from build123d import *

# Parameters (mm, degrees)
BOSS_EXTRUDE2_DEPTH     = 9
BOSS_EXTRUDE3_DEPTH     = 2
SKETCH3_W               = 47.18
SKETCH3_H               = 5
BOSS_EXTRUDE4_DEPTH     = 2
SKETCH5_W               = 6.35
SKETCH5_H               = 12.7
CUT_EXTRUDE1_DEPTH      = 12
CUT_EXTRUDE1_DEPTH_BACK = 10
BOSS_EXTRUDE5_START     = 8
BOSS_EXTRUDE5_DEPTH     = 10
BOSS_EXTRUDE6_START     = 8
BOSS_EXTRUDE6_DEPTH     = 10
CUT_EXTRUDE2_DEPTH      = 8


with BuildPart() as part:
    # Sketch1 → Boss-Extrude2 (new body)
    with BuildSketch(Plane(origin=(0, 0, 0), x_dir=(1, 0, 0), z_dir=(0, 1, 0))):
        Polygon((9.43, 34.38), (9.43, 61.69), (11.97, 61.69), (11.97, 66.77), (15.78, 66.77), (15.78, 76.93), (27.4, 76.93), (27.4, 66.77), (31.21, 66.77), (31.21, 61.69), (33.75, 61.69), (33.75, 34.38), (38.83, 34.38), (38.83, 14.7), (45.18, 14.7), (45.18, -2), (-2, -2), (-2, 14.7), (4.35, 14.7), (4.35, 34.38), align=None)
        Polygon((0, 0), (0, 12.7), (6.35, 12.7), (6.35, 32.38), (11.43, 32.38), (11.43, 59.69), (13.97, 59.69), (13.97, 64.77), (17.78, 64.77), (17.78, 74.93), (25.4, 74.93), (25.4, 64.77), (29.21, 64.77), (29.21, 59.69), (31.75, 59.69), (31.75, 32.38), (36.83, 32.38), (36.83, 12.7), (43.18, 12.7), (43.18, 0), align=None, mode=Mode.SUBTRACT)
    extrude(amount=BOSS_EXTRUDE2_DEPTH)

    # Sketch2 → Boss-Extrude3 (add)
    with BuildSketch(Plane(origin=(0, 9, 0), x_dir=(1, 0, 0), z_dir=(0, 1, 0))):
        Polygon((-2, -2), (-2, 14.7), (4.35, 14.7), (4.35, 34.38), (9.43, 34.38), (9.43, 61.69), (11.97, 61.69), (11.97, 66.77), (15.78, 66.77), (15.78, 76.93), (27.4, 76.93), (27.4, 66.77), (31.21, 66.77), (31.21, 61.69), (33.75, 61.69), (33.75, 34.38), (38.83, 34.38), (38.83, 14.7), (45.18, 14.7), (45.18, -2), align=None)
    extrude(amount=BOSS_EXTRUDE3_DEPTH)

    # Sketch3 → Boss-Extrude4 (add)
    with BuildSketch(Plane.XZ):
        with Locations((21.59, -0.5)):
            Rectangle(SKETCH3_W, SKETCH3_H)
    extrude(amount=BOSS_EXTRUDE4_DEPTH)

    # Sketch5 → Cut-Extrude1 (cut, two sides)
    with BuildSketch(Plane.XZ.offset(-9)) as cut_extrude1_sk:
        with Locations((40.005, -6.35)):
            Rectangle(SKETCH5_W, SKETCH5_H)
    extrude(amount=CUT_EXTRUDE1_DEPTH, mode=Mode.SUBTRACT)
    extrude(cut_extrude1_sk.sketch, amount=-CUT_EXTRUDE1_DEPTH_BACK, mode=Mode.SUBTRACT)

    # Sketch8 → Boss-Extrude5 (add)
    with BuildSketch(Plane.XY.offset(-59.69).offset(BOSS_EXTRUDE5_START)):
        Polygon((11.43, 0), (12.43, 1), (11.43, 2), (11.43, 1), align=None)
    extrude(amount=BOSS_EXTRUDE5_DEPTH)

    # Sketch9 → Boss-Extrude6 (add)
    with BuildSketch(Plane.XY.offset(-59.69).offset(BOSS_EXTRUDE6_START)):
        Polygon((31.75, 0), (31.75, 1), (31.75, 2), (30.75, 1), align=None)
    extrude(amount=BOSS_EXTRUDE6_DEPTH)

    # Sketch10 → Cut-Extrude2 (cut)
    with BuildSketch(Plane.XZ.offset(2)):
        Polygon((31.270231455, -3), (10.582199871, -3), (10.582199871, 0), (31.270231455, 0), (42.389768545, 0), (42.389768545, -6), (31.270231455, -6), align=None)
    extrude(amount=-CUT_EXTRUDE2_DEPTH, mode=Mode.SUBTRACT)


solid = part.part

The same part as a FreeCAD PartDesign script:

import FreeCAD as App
import Part
import Sketcher

doc = App.newDocument("Part")
body = doc.addObject("PartDesign::Body", "Body")

sketch1 = body.newObject("Sketcher::SketchObject", "Sketch")
sketch1.AttachmentSupport = (doc.getObject("XZ_Plane"), [""])
sketch1.MapMode = "FlatFace"
sketch1.addGeometry([
    Part.LineSegment(App.Vector(9.4, -61.7, 0), App.Vector(9.4, -34.4, 0)),
    Part.LineSegment(App.Vector(9.4, -34.4, 0), App.Vector(4.3, -34.4, 0)),
    Part.LineSegment(App.Vector(4.3, -34.4, 0), App.Vector(4.3, -14.7, 0)),
    Part.LineSegment(App.Vector(4.3, -14.7, 0), App.Vector(-2, -14.7, 0)),
    Part.LineSegment(App.Vector(-2, -14.7, 0), App.Vector(-2, 2, 0)),
    Part.LineSegment(App.Vector(-2, 2, 0), App.Vector(45.2, 2, 0)),
    Part.LineSegment(App.Vector(45.2, 2, 0), App.Vector(45.2, -14.7, 0)),
    Part.LineSegment(App.Vector(45.2, -14.7, 0), App.Vector(38.8, -14.7, 0)),
    Part.LineSegment(App.Vector(38.8, -14.7, 0), App.Vector(38.8, -34.4, 0)),
    Part.LineSegment(App.Vector(38.8, -34.4, 0), App.Vector(33.8, -34.4, 0)),
    Part.LineSegment(App.Vector(33.8, -34.4, 0), App.Vector(33.8, -61.7, 0)),
    Part.LineSegment(App.Vector(33.8, -61.7, 0), App.Vector(31.2, -61.7, 0)),
    Part.LineSegment(App.Vector(31.2, -61.7, 0), App.Vector(31.2, -66.8, 0)),
    Part.LineSegment(App.Vector(31.2, -66.8, 0), App.Vector(27.4, -66.8, 0)),
    Part.LineSegment(App.Vector(27.4, -66.8, 0), App.Vector(27.4, -76.9, 0)),
    Part.LineSegment(App.Vector(27.4, -76.9, 0), App.Vector(15.8, -76.9, 0)),
    Part.LineSegment(App.Vector(15.8, -76.9, 0), App.Vector(15.8, -66.8, 0)),
    Part.LineSegment(App.Vector(15.8, -66.8, 0), App.Vector(12, -66.8, 0)),
    Part.LineSegment(App.Vector(12, -66.8, 0), App.Vector(12, -61.7, 0)),
    Part.LineSegment(App.Vector(12, -61.7, 0), App.Vector(9.4, -61.7, 0)),
    Part.LineSegment(App.Vector(0, 0, 0), App.Vector(0, -12.7, 0)),
    Part.LineSegment(App.Vector(0, -12.7, 0), App.Vector(6.3, -12.7, 0)),
    Part.LineSegment(App.Vector(6.3, -12.7, 0), App.Vector(6.3, -32.4, 0)),
    Part.LineSegment(App.Vector(6.3, -32.4, 0), App.Vector(11.4, -32.4, 0)),
    Part.LineSegment(App.Vector(11.4, -32.4, 0), App.Vector(11.4, -59.7, 0)),
    Part.LineSegment(App.Vector(11.4, -59.7, 0), App.Vector(14, -59.7, 0)),
    Part.LineSegment(App.Vector(14, -59.7, 0), App.Vector(14, -64.8, 0)),
    Part.LineSegment(App.Vector(14, -64.8, 0), App.Vector(17.8, -64.8, 0)),
    Part.LineSegment(App.Vector(17.8, -64.8, 0), App.Vector(17.8, -74.9, 0)),
    Part.LineSegment(App.Vector(17.8, -74.9, 0), App.Vector(25.4, -74.9, 0)),
    Part.LineSegment(App.Vector(25.4, -74.9, 0), App.Vector(25.4, -64.8, 0)),
    Part.LineSegment(App.Vector(25.4, -64.8, 0), App.Vector(29.2, -64.8, 0)),
    Part.LineSegment(App.Vector(29.2, -64.8, 0), App.Vector(29.2, -59.7, 0)),
    Part.LineSegment(App.Vector(29.2, -59.7, 0), App.Vector(31.8, -59.7, 0)),
    Part.LineSegment(App.Vector(31.8, -59.7, 0), App.Vector(31.8, -32.4, 0)),
    Part.LineSegment(App.Vector(31.8, -32.4, 0), App.Vector(36.8, -32.4, 0)),
    Part.LineSegment(App.Vector(36.8, -32.4, 0), App.Vector(36.8, -12.7, 0)),
    Part.LineSegment(App.Vector(36.8, -12.7, 0), App.Vector(43.2, -12.7, 0)),
    Part.LineSegment(App.Vector(43.2, -12.7, 0), App.Vector(43.2, 0, 0)),
    Part.LineSegment(App.Vector(43.2, 0, 0), App.Vector(0, 0, 0)),
], False)
sketch1.addConstraint([
    Sketcher.Constraint("Coincident", 0, 2, 1, 1),
    Sketcher.Constraint("Coincident", 1, 2, 2, 1),
    Sketcher.Constraint("Coincident", 2, 2, 3, 1),
    Sketcher.Constraint("Coincident", 3, 2, 4, 1),
    Sketcher.Constraint("Coincident", 4, 2, 5, 1),
    Sketcher.Constraint("Coincident", 5, 2, 6, 1),
    Sketcher.Constraint("Coincident", 6, 2, 7, 1),
    Sketcher.Constraint("Coincident", 7, 2, 8, 1),
    Sketcher.Constraint("Coincident", 8, 2, 9, 1),
    Sketcher.Constraint("Coincident", 9, 2, 10, 1),
    Sketcher.Constraint("Coincident", 10, 2, 11, 1),
    Sketcher.Constraint("Coincident", 11, 2, 12, 1),
    Sketcher.Constraint("Coincident", 12, 2, 13, 1),
    Sketcher.Constraint("Coincident", 13, 2, 14, 1),
    Sketcher.Constraint("Coincident", 14, 2, 15, 1),
    Sketcher.Constraint("Coincident", 15, 2, 16, 1),
    Sketcher.Constraint("Coincident", 16, 2, 17, 1),
    Sketcher.Constraint("Coincident", 17, 2, 18, 1),
    Sketcher.Constraint("Coincident", 18, 2, 19, 1),
    Sketcher.Constraint("Coincident", 19, 2, 0, 1),
    Sketcher.Constraint("Coincident", 20, 2, 21, 1),
    Sketcher.Constraint("Coincident", 21, 2, 22, 1),
    Sketcher.Constraint("Coincident", 22, 2, 23, 1),
    Sketcher.Constraint("Coincident", 23, 2, 24, 1),
    Sketcher.Constraint("Coincident", 24, 2, 25, 1),
    Sketcher.Constraint("Coincident", 25, 2, 26, 1),
    Sketcher.Constraint("Coincident", 26, 2, 27, 1),
    Sketcher.Constraint("Coincident", 27, 2, 28, 1),
    Sketcher.Constraint("Coincident", 28, 2, 29, 1),
    Sketcher.Constraint("Coincident", 29, 2, 30, 1),
    Sketcher.Constraint("Coincident", 30, 2, 31, 1),
    Sketcher.Constraint("Coincident", 31, 2, 32, 1),
    Sketcher.Constraint("Coincident", 32, 2, 33, 1),
    Sketcher.Constraint("Coincident", 33, 2, 34, 1),
    Sketcher.Constraint("Coincident", 34, 2, 35, 1),
    Sketcher.Constraint("Coincident", 35, 2, 36, 1),
    Sketcher.Constraint("Coincident", 36, 2, 37, 1),
    Sketcher.Constraint("Coincident", 37, 2, 38, 1),
    Sketcher.Constraint("Coincident", 38, 2, 39, 1),
    Sketcher.Constraint("Coincident", 39, 2, 20, 1),
    Sketcher.Constraint("Vertical", 0),
    Sketcher.Constraint("Horizontal", 1),
    Sketcher.Constraint("Vertical", 2),
    Sketcher.Constraint("Horizontal", 3),
    Sketcher.Constraint("Vertical", 4),
    Sketcher.Constraint("Horizontal", 5),
    Sketcher.Constraint("Vertical", 6),
    Sketcher.Constraint("Horizontal", 7),
    Sketcher.Constraint("Vertical", 8),
    Sketcher.Constraint("Horizontal", 9),
    Sketcher.Constraint("Vertical", 10),
    Sketcher.Constraint("Horizontal", 11),
    Sketcher.Constraint("Vertical", 12),
    Sketcher.Constraint("Horizontal", 13),
    Sketcher.Constraint("Vertical", 14),
    Sketcher.Constraint("Horizontal", 15),
    Sketcher.Constraint("Vertical", 16),
    Sketcher.Constraint("Horizontal", 17),
    Sketcher.Constraint("Vertical", 18),
    Sketcher.Constraint("Horizontal", 19),
    Sketcher.Constraint("Vertical", 20),
    Sketcher.Constraint("Horizontal", 21),
    Sketcher.Constraint("Vertical", 22),
    Sketcher.Constraint("Horizontal", 23),
    Sketcher.Constraint("Vertical", 24),
    Sketcher.Constraint("Horizontal", 25),
    Sketcher.Constraint("Vertical", 26),
    Sketcher.Constraint("Horizontal", 27),
    Sketcher.Constraint("Vertical", 28),
    Sketcher.Constraint("Horizontal", 29),
    Sketcher.Constraint("Vertical", 30),
    Sketcher.Constraint("Horizontal", 31),
    Sketcher.Constraint("Vertical", 32),
    Sketcher.Constraint("Horizontal", 33),
    Sketcher.Constraint("Vertical", 34),
    Sketcher.Constraint("Horizontal", 35),
    Sketcher.Constraint("Vertical", 36),
    Sketcher.Constraint("Horizontal", 37),
    Sketcher.Constraint("Vertical", 38),
    Sketcher.Constraint("Horizontal", 39),
    Sketcher.Constraint("Coincident", 39, 2, -1, 1),
    Sketcher.Constraint("Horizontal", 3, 2, 6, 2),
    Sketcher.Constraint("Horizontal", 1, 2, 8, 2),
    Sketcher.Constraint("Horizontal", 13, 2, 16, 2),
    Sketcher.Constraint("Horizontal", 11, 2, 18, 2),
    Sketcher.Constraint("Horizontal", 27, 2, 30, 2),
    Sketcher.Constraint("Horizontal", 25, 2, 32, 2),
    Sketcher.Constraint("Horizontal", 23, 2, 34, 2),
    Sketcher.Constraint("Horizontal", 21, 2, 36, 2),
    Sketcher.Constraint("Equal", 3, 7),
    Sketcher.Constraint("Equal", 1, 9),
    Sketcher.Constraint("Equal", 13, 17),
    Sketcher.Constraint("Equal", 11, 19),
    Sketcher.Constraint("Equal", 7, 21),
    Sketcher.Constraint("Equal", 9, 23),
    Sketcher.Constraint("Equal", 19, 25),
    Sketcher.Constraint("Equal", 17, 27),
    Sketcher.Constraint("Equal", 27, 31),
    Sketcher.Constraint("Equal", 25, 33),
    Sketcher.Constraint("Equal", 23, 35),
    Sketcher.Constraint("Equal", 21, 37),
    Sketcher.Constraint("Equal", 35, 12),
    Sketcher.Constraint("Equal", 8, 22),
    Sketcher.Constraint("Equal", 10, 24),
    Sketcher.Constraint("Equal", 18, 26),
    Sketcher.Constraint("Equal", 16, 28),
    Sketcher.Constraint("DistanceY", 4, 1, 4, 2, 16.7),
    Sketcher.Constraint("DistanceY", 20, 2, 20, 1, 12.7),
    Sketcher.Constraint("DistanceX", 3, 2, -1, 1, 2.0),
    Sketcher.Constraint("DistanceY", -1, 1, 4, 2, 2.0),
    Sketcher.Constraint("DistanceX", 29, 2, 14, 2, 2.0),
    Sketcher.Constraint("DistanceX", 1, 2, 1, 1, 5.08),
    Sketcher.Constraint("DistanceX", 3, 2, 3, 1, 6.35),
    Sketcher.Constraint("DistanceX", 5, 1, 5, 2, 47.18),
    Sketcher.Constraint("DistanceX", 11, 2, 11, 1, 2.54),
    Sketcher.Constraint("DistanceX", 13, 2, 13, 1, 3.81),
    Sketcher.Constraint("DistanceY", 0, 1, 0, 2, 27.31),
    Sketcher.Constraint("DistanceY", 2, 1, 2, 2, 19.68),
    Sketcher.Constraint("DistanceY", 14, 2, 14, 1, 10.16),
])
pad1 = body.newObject("PartDesign::Pad", "Pad")
pad1.Profile = sketch1
pad1.Length = 9
pad1.Reversed = True

sketch2 = body.newObject("Sketcher::SketchObject", "Sketch001")
sketch2.AttachmentSupport = (doc.getObject("XZ_Plane"), [""])
sketch2.MapMode = "FlatFace"
sketch2.AttachmentOffset = App.Placement(App.Vector(0, 0, -9), App.Rotation())
sketch2.addGeometry([
    Part.LineSegment(App.Vector(-2, -14.7, 0), App.Vector(-2, 2, 0)),
    Part.LineSegment(App.Vector(-2, 2, 0), App.Vector(45.2, 2, 0)),
    Part.LineSegment(App.Vector(45.2, 2, 0), App.Vector(45.2, -14.7, 0)),
    Part.LineSegment(App.Vector(45.2, -14.7, 0), App.Vector(38.8, -14.7, 0)),
    Part.LineSegment(App.Vector(38.8, -14.7, 0), App.Vector(38.8, -34.4, 0)),
    Part.LineSegment(App.Vector(38.8, -34.4, 0), App.Vector(33.8, -34.4, 0)),
    Part.LineSegment(App.Vector(33.8, -34.4, 0), App.Vector(33.8, -61.7, 0)),
    Part.LineSegment(App.Vector(33.8, -61.7, 0), App.Vector(31.2, -61.7, 0)),
    Part.LineSegment(App.Vector(31.2, -61.7, 0), App.Vector(31.2, -66.8, 0)),
    Part.LineSegment(App.Vector(31.2, -66.8, 0), App.Vector(27.4, -66.8, 0)),
    Part.LineSegment(App.Vector(27.4, -66.8, 0), App.Vector(27.4, -76.9, 0)),
    Part.LineSegment(App.Vector(27.4, -76.9, 0), App.Vector(15.8, -76.9, 0)),
    Part.LineSegment(App.Vector(15.8, -76.9, 0), App.Vector(15.8, -66.8, 0)),
    Part.LineSegment(App.Vector(15.8, -66.8, 0), App.Vector(12, -66.8, 0)),
    Part.LineSegment(App.Vector(12, -66.8, 0), App.Vector(12, -61.7, 0)),
    Part.LineSegment(App.Vector(12, -61.7, 0), App.Vector(9.4, -61.7, 0)),
    Part.LineSegment(App.Vector(9.4, -61.7, 0), App.Vector(9.4, -34.4, 0)),
    Part.LineSegment(App.Vector(9.4, -34.4, 0), App.Vector(4.3, -34.4, 0)),
    Part.LineSegment(App.Vector(4.3, -34.4, 0), App.Vector(4.3, -14.7, 0)),
    Part.LineSegment(App.Vector(4.3, -14.7, 0), App.Vector(-2, -14.7, 0)),
], False)
sketch2.addConstraint([
    Sketcher.Constraint("Coincident", 0, 2, 1, 1),
    Sketcher.Constraint("Coincident", 1, 2, 2, 1),
    Sketcher.Constraint("Coincident", 2, 2, 3, 1),
    Sketcher.Constraint("Coincident", 3, 2, 4, 1),
    Sketcher.Constraint("Coincident", 4, 2, 5, 1),
    Sketcher.Constraint("Coincident", 5, 2, 6, 1),
    Sketcher.Constraint("Coincident", 6, 2, 7, 1),
    Sketcher.Constraint("Coincident", 7, 2, 8, 1),
    Sketcher.Constraint("Coincident", 8, 2, 9, 1),
    Sketcher.Constraint("Coincident", 9, 2, 10, 1),
    Sketcher.Constraint("Coincident", 10, 2, 11, 1),
    Sketcher.Constraint("Coincident", 11, 2, 12, 1),
    Sketcher.Constraint("Coincident", 12, 2, 13, 1),
    Sketcher.Constraint("Coincident", 13, 2, 14, 1),
    Sketcher.Constraint("Coincident", 14, 2, 15, 1),
    Sketcher.Constraint("Coincident", 15, 2, 16, 1),
    Sketcher.Constraint("Coincident", 16, 2, 17, 1),
    Sketcher.Constraint("Coincident", 17, 2, 18, 1),
    Sketcher.Constraint("Coincident", 18, 2, 19, 1),
    Sketcher.Constraint("Coincident", 19, 2, 0, 1),
    Sketcher.Constraint("Vertical", 0),
    Sketcher.Constraint("Horizontal", 1),
    Sketcher.Constraint("Vertical", 2),
    Sketcher.Constraint("Horizontal", 3),
    Sketcher.Constraint("Vertical", 4),
    Sketcher.Constraint("Horizontal", 5),
    Sketcher.Constraint("Vertical", 6),
    Sketcher.Constraint("Horizontal", 7),
    Sketcher.Constraint("Vertical", 8),
    Sketcher.Constraint("Horizontal", 9),
    Sketcher.Constraint("Vertical", 10),
    Sketcher.Constraint("Horizontal", 11),
    Sketcher.Constraint("Vertical", 12),
    Sketcher.Constraint("Horizontal", 13),
    Sketcher.Constraint("Vertical", 14),
    Sketcher.Constraint("Horizontal", 15),
    Sketcher.Constraint("Vertical", 16),
    Sketcher.Constraint("Horizontal", 17),
    Sketcher.Constraint("Vertical", 18),
    Sketcher.Constraint("Horizontal", 19),
    Sketcher.Constraint("Horizontal", 9, 2, 12, 2),
    Sketcher.Constraint("Horizontal", 7, 2, 14, 2),
    Sketcher.Constraint("Horizontal", 5, 2, 16, 2),
    Sketcher.Constraint("Horizontal", 3, 2, 18, 2),
    Sketcher.Constraint("Equal", 9, 13),
    Sketcher.Constraint("Equal", 7, 15),
    Sketcher.Constraint("Equal", 5, 17),
    Sketcher.Constraint("Equal", 3, 19),
    Sketcher.Constraint("Equal", 17, 8),
    Sketcher.Constraint("DistanceY", 0, 1, 0, 2, 16.7),
    Sketcher.Constraint("DistanceX", 0, 2, -1, 1, 2.0),
    Sketcher.Constraint("DistanceY", -1, 1, 0, 2, 2.0),
    Sketcher.Constraint("DistanceX", 1, 1, 1, 2, 47.18),
    Sketcher.Constraint("DistanceX", 3, 2, 3, 1, 6.35),
    Sketcher.Constraint("DistanceX", 5, 2, 5, 1, 5.08),
    Sketcher.Constraint("DistanceX", 7, 2, 7, 1, 2.54),
    Sketcher.Constraint("DistanceX", 9, 2, 9, 1, 3.81),
    Sketcher.Constraint("DistanceY", 4, 2, 4, 1, 19.68),
    Sketcher.Constraint("DistanceY", 6, 2, 6, 1, 27.31),
    Sketcher.Constraint("DistanceY", 10, 2, 10, 1, 10.16),
])
pad2 = body.newObject("PartDesign::Pad", "Pad001")
pad2.Profile = sketch2
pad2.Length = 2
pad2.Reversed = True

sketch3 = body.newObject("Sketcher::SketchObject", "Sketch002")
sketch3.AttachmentSupport = (doc.getObject("XZ_Plane"), [""])
sketch3.MapMode = "FlatFace"
sketch3.addGeometry([
    Part.LineSegment(App.Vector(-2, 2, 0), App.Vector(-2, -3, 0)),
    Part.LineSegment(App.Vector(-2, -3, 0), App.Vector(45, -3, 0)),
    Part.LineSegment(App.Vector(45, -3, 0), App.Vector(45, 2, 0)),
    Part.LineSegment(App.Vector(45, 2, 0), App.Vector(-2, 2, 0)),
], False)
sketch3.addConstraint([
    Sketcher.Constraint("Coincident", 0, 2, 1, 1),
    Sketcher.Constraint("Coincident", 1, 2, 2, 1),
    Sketcher.Constraint("Coincident", 2, 2, 3, 1),
    Sketcher.Constraint("Coincident", 3, 2, 0, 1),
    Sketcher.Constraint("Vertical", 0),
    Sketcher.Constraint("Horizontal", 1),
    Sketcher.Constraint("Vertical", 2),
    Sketcher.Constraint("Horizontal", 3),
    Sketcher.Constraint("DistanceY", 0, 2, 0, 1, 5.0),
    Sketcher.Constraint("DistanceX", 0, 2, -1, 1, 2.0),
    Sketcher.Constraint("DistanceY", 0, 2, -1, 1, 3.0),
    Sketcher.Constraint("DistanceX", 1, 1, 1, 2, 47.18),
])
pad3 = body.newObject("PartDesign::Pad", "Pad002")
pad3.Profile = sketch3
pad3.Length = 2

sketch4 = body.newObject("Sketcher::SketchObject", "Sketch003")
sketch4.AttachmentSupport = (doc.getObject("XZ_Plane"), [""])
sketch4.MapMode = "FlatFace"
sketch4.AttachmentOffset = App.Placement(App.Vector(0, 0, -9), App.Rotation())
sketch4.addGeometry([
    Part.LineSegment(App.Vector(37, 0, 0), App.Vector(37, -13, 0)),
    Part.LineSegment(App.Vector(37, -13, 0), App.Vector(43, -13, 0)),
    Part.LineSegment(App.Vector(43, -13, 0), App.Vector(43, 0, 0)),
    Part.LineSegment(App.Vector(43, 0, 0), App.Vector(37, 0, 0)),
], False)
sketch4.addConstraint([
    Sketcher.Constraint("Coincident", 0, 2, 1, 1),
    Sketcher.Constraint("Coincident", 1, 2, 2, 1),
    Sketcher.Constraint("Coincident", 2, 2, 3, 1),
    Sketcher.Constraint("Coincident", 3, 2, 0, 1),
    Sketcher.Constraint("Vertical", 0),
    Sketcher.Constraint("Horizontal", 1),
    Sketcher.Constraint("Vertical", 2),
    Sketcher.Constraint("Horizontal", 3),
    Sketcher.Constraint("PointOnObject", 2, 2, -1),
    Sketcher.Constraint("DistanceY", 0, 2, 0, 1, 12.7),
    Sketcher.Constraint("DistanceX", 1, 1, 1, 2, 6.35),
    Sketcher.Constraint("DistanceX", -1, 1, 0, 2, 36.83),
])
pocket1 = body.newObject("PartDesign::Pocket", "Pocket")
pocket1.Profile = sketch4
pocket1.Type = "ThroughAll"
pocket1.Midplane = True

sketch5 = body.newObject("Sketcher::SketchObject", "Sketch004")
sketch5.AttachmentSupport = (doc.getObject("XY_Plane"), [""])
sketch5.MapMode = "FlatFace"
sketch5.AttachmentOffset = App.Placement(App.Vector(0, 0, -51.69), App.Rotation())
sketch5.addGeometry([
    Part.LineSegment(App.Vector(11.4, 0, 0), App.Vector(12.4, 1, 0)),
    Part.LineSegment(App.Vector(12.4, 1, 0), App.Vector(11.4, 2, 0)),
    Part.LineSegment(App.Vector(11.4, 2, 0), App.Vector(11.4, 0, 0)),
], False)
sketch5.addConstraint([
    Sketcher.Constraint("Coincident", 0, 2, 1, 1),
    Sketcher.Constraint("Coincident", 1, 2, 2, 1),
    Sketcher.Constraint("Coincident", 2, 2, 0, 1),
    Sketcher.Constraint("Vertical", 2),
    Sketcher.Constraint("PointOnObject", 2, 2, -1),
    Sketcher.Constraint("Perpendicular", 0, 1),
    Sketcher.Constraint("Equal", 0, 1),
    Sketcher.Constraint("DistanceY", 2, 2, 2, 1, 2.0),
    Sketcher.Constraint("DistanceX", -1, 1, 0, 2, 12.43),
])
pad4 = body.newObject("PartDesign::Pad", "Pad003")
pad4.Profile = sketch5
pad4.Length = 10

sketch6 = body.newObject("Sketcher::SketchObject", "Sketch005")
sketch6.AttachmentSupport = (doc.getObject("XY_Plane"), [""])
sketch6.MapMode = "FlatFace"
sketch6.AttachmentOffset = App.Placement(App.Vector(0, 0, -51.69), App.Rotation())
sketch6.addGeometry([
    Part.LineSegment(App.Vector(31.8, 0, 0), App.Vector(31.8, 2, 0)),
    Part.LineSegment(App.Vector(31.8, 2, 0), App.Vector(30.8, 1, 0)),
    Part.LineSegment(App.Vector(30.8, 1, 0), App.Vector(31.8, 0, 0)),
], False)
sketch6.addConstraint([
    Sketcher.Constraint("Coincident", 0, 2, 1, 1),
    Sketcher.Constraint("Coincident", 1, 2, 2, 1),
    Sketcher.Constraint("Coincident", 2, 2, 0, 1),
    Sketcher.Constraint("Vertical", 0),
    Sketcher.Constraint("PointOnObject", 2, 2, -1),
    Sketcher.Constraint("Perpendicular", 1, 2),
    Sketcher.Constraint("Equal", 1, 2),
    Sketcher.Constraint("DistanceY", 0, 1, 0, 2, 2.0),
    Sketcher.Constraint("DistanceX", -1, 1, 0, 2, 31.75),
])
pad5 = body.newObject("PartDesign::Pad", "Pad004")
pad5.Profile = sketch6
pad5.Length = 10

sketch7 = body.newObject("Sketcher::SketchObject", "Sketch006")
sketch7.AttachmentSupport = (doc.getObject("XZ_Plane"), [""])
sketch7.MapMode = "FlatFace"
sketch7.AttachmentOffset = App.Placement(App.Vector(0, 0, 2), App.Rotation())
sketch7.addGeometry([
    Part.LineSegment(App.Vector(10.6, -3, 0), App.Vector(31.3, -3, 0)),
    Part.LineSegment(App.Vector(31.3, -3, 0), App.Vector(31.3, -6, 0)),
    Part.LineSegment(App.Vector(31.3, -6, 0), App.Vector(42.4, -6, 0)),
    Part.LineSegment(App.Vector(42.4, -6, 0), App.Vector(42.4, 0, 0)),
    Part.LineSegment(App.Vector(42.4, 0, 0), App.Vector(10.6, 0, 0)),
    Part.LineSegment(App.Vector(10.6, 0, 0), App.Vector(10.6, -3, 0)),
], False)
sketch7.addConstraint([
    Sketcher.Constraint("Coincident", 0, 2, 1, 1),
    Sketcher.Constraint("Coincident", 1, 2, 2, 1),
    Sketcher.Constraint("Coincident", 2, 2, 3, 1),
    Sketcher.Constraint("Coincident", 3, 2, 4, 1),
    Sketcher.Constraint("Coincident", 4, 2, 5, 1),
    Sketcher.Constraint("Coincident", 5, 2, 0, 1),
    Sketcher.Constraint("Horizontal", 0),
    Sketcher.Constraint("Vertical", 1),
    Sketcher.Constraint("Horizontal", 2),
    Sketcher.Constraint("Vertical", 3),
    Sketcher.Constraint("Horizontal", 4),
    Sketcher.Constraint("Vertical", 5),
    Sketcher.Constraint("PointOnObject", 3, 2, -1),
    Sketcher.Constraint("Equal", 1, 5),
    Sketcher.Constraint("DistanceY", 1, 2, 1, 1, 3.0),
    Sketcher.Constraint("DistanceX", 0, 1, 0, 2, 20.688032),
    Sketcher.Constraint("DistanceX", 4, 2, 4, 1, 31.807569),
    Sketcher.Constraint("DistanceX", -1, 1, 4, 2, 10.5822),
])
pocket2 = body.newObject("PartDesign::Pocket", "Pocket001")
pocket2.Profile = sketch7
pocket2.Length = 8

doc.recompute()
